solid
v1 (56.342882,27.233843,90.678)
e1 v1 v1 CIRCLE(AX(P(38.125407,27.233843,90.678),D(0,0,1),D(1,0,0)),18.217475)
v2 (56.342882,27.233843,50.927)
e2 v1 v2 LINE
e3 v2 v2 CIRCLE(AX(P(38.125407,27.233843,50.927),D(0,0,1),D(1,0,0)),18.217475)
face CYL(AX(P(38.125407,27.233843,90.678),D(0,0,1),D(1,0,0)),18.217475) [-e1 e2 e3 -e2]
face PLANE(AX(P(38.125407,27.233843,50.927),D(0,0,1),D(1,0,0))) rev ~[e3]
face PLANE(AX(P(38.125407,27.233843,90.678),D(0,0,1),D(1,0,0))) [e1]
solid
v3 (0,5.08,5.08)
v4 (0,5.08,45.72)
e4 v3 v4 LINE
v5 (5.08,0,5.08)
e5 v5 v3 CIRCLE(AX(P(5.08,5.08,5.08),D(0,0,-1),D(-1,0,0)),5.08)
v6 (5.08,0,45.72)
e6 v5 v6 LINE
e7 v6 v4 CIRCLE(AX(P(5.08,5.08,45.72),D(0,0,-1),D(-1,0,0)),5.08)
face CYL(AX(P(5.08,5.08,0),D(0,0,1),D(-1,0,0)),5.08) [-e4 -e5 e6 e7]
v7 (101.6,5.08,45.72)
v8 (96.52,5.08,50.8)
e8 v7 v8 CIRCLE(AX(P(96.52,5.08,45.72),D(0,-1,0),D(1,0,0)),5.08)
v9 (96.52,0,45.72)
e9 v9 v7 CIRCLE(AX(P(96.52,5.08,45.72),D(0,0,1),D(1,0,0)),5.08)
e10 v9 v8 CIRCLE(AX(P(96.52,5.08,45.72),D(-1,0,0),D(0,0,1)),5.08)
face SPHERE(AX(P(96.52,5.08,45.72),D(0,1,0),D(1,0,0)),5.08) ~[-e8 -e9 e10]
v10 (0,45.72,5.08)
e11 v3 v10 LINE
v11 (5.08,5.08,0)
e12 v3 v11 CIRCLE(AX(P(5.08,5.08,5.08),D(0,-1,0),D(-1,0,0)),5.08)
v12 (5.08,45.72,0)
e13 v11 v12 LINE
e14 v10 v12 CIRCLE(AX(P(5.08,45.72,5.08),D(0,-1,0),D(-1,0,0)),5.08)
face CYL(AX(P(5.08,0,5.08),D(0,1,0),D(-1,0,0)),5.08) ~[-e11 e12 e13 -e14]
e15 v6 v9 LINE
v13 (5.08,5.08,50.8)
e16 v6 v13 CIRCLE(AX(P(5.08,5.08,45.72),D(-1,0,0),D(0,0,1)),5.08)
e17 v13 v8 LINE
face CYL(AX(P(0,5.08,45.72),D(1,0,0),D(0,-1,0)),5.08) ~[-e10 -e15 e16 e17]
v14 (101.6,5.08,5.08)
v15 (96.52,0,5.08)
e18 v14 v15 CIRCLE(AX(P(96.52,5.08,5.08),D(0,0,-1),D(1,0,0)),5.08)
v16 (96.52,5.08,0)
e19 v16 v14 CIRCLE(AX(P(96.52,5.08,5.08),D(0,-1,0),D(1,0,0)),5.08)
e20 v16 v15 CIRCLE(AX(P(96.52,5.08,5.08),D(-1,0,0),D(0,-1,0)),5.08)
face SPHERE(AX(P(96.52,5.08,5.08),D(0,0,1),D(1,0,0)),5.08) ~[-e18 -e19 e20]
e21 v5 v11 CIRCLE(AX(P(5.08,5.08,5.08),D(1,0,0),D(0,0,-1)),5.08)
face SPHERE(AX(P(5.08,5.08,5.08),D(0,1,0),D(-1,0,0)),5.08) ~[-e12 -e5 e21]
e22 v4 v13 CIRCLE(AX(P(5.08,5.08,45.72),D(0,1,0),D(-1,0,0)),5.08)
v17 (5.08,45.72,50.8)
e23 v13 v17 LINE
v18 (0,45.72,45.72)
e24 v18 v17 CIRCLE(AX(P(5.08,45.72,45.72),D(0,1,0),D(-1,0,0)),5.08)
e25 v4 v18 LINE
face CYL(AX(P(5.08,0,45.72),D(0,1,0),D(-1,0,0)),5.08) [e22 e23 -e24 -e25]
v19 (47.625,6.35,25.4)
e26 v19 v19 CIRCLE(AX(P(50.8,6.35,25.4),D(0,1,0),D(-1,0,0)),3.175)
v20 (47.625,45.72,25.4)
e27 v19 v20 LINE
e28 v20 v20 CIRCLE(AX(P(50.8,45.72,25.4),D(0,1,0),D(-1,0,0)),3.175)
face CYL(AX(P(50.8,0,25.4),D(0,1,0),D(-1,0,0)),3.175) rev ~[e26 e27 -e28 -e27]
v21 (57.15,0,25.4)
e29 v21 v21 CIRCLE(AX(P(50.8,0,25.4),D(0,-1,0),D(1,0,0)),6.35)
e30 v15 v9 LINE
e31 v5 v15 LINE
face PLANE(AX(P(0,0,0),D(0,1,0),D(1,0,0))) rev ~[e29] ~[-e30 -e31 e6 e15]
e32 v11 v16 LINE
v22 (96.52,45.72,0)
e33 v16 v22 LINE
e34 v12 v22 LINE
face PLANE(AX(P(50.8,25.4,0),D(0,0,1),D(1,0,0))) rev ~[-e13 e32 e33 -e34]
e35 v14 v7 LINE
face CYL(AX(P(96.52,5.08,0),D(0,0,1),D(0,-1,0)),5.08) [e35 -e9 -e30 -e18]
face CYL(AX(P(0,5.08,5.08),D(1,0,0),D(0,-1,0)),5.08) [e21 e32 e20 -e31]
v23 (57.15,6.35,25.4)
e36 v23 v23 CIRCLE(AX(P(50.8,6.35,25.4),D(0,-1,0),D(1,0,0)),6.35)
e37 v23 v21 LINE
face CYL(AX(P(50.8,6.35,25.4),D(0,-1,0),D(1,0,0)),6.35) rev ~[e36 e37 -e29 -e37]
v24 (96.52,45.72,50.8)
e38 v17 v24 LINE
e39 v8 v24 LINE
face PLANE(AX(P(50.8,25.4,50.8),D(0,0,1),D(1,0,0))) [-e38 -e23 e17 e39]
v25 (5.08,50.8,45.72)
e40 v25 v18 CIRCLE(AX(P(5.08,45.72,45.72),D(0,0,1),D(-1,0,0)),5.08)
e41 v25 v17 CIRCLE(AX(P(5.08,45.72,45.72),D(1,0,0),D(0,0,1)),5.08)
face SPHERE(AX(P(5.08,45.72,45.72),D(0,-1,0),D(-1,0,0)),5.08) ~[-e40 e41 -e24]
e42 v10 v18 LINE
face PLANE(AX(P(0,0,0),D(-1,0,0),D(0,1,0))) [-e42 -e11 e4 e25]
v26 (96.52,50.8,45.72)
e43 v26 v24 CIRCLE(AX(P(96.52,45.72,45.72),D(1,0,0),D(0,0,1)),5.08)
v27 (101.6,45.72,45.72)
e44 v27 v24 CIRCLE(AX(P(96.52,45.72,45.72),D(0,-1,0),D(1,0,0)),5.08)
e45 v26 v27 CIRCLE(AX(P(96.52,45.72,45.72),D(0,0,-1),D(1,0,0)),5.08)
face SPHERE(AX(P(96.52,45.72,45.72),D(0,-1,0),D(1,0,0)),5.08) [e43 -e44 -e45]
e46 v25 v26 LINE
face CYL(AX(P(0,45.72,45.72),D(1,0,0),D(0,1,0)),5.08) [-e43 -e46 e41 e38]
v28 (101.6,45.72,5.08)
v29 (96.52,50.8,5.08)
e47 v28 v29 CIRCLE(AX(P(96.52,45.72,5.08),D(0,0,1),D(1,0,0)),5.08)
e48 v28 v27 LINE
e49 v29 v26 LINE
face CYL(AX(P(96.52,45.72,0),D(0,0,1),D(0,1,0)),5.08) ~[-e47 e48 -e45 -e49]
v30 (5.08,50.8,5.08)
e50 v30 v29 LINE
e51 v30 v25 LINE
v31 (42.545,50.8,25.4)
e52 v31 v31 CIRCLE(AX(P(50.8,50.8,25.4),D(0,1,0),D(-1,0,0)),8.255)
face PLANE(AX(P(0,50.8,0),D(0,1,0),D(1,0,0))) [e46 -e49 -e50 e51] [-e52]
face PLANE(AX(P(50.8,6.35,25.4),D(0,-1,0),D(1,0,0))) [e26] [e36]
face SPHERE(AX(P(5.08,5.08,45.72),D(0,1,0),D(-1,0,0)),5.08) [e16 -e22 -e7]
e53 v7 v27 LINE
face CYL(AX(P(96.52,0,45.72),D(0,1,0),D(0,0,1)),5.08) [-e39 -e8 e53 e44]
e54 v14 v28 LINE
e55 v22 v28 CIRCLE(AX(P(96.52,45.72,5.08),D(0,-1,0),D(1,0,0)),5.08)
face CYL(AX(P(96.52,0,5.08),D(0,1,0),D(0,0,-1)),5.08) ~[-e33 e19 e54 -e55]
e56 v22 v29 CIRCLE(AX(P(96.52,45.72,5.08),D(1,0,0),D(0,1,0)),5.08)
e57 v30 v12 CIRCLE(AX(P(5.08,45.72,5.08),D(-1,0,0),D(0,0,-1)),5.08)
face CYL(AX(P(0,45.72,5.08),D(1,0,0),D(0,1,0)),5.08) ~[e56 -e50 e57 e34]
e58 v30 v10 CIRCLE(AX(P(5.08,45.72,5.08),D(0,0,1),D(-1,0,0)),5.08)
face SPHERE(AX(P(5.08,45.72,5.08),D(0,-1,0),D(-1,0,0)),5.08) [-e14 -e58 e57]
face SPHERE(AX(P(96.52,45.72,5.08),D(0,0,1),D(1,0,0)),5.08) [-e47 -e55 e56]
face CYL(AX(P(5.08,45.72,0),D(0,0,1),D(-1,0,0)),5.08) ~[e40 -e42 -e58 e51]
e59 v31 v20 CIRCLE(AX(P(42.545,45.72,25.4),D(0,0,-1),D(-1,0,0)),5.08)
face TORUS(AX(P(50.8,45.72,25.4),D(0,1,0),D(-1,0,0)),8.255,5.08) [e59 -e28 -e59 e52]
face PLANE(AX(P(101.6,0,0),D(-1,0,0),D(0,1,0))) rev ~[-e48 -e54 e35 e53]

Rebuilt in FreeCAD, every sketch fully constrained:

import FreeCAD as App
import Part
import Sketcher
from FreeCAD import Vector
Q = App.Units.Quantity


def edges_at(feature, points):
    """Names of the edges that pass closest to the given points."""
    edges = feature.Shape.Edges
    near = lambda p: min(range(len(edges)), key=lambda i: edges[i].distToShape(Part.Vertex(*p))[0])
    return sorted({f"Edge{near(p) + 1}" for p in points})

doc = App.newDocument("Part")
body = doc.addObject("PartDesign::Body", "Body")

# Sketch on XY plane
sketch1 = body.newObject("Sketcher::SketchObject", "Sketch")
sketch1.AttachmentSupport = (doc.getObject("XY_Plane"), [""])
sketch1.MapMode = "FlatFace"
sketch1.addGeometry([
    Part.LineSegment(Vector(0, 51, 0), Vector(0, 0, 0)),
    Part.LineSegment(Vector(0, 0, 0), Vector(102, 0, 0)),
    Part.LineSegment(Vector(102, 0, 0), Vector(102, 51, 0)),
    Part.LineSegment(Vector(102, 51, 0), Vector(0, 51, 0)),
], False)
sketch1.addConstraint([
    Sketcher.Constraint("Coincident", 0, 2, 1, 1),
    Sketcher.Constraint("Coincident", 1, 2, 2, 1),
    Sketcher.Constraint("Coincident", 2, 2, 3, 1),
    Sketcher.Constraint("Coincident", 3, 2, 0, 1),
    Sketcher.Constraint("Vertical", 0),
    Sketcher.Constraint("Horizontal", 1),
    Sketcher.Constraint("Vertical", 2),
    Sketcher.Constraint("Horizontal", 3),
    Sketcher.Constraint("Coincident", 0, 2, -1, 1),
    Sketcher.Constraint("DistanceX", 1, 1, 1, 2, Q("4 in")),
    Sketcher.Constraint("DistanceY", 0, 2, 0, 1, Q("2 in")),
])
pad1 = body.newObject("PartDesign::Pad", "Pad")
pad1.Profile = sketch1
pad1.Length = Q("2 in")

# Sketch on XZ plane
sketch2 = body.newObject("Sketcher::SketchObject", "Sketch001")
sketch2.AttachmentSupport = (doc.getObject("XZ_Plane"), [""])
sketch2.MapMode = "FlatFace"
sketch2.addGeometry(Part.Circle(Vector(50.8, 25.4, 0), Vector(0, 0, 1), 3.2), False)
sketch2.addConstraint([
    Sketcher.Constraint("Diameter", 0, Q("0.25 in")),
    Sketcher.Constraint("DistanceX", -1, 1, 0, 3, Q("2 in")),
    Sketcher.Constraint("DistanceY", -1, 1, 0, 3, Q("1 in")),
])
doc.recompute()
hole = body.newObject("PartDesign::Hole", "Hole")
hole.Profile = sketch2
hole.ThreadType = "None"
hole.Diameter = Q("0.25 in")
hole.DepthType = "ThroughAll"
hole.HoleCutType = "Counterbore"
hole.HoleCutDiameter = Q("0.5 in")
hole.HoleCutDepth = Q("0.25 in")
doc.recompute()

fillet = body.newObject("PartDesign::Fillet", "Fillet")
fillet.Base = (hole, edges_at(hole, [
    (101.6, 25.4, 50.8),
    (101.6, 0, 25.4),
    (101.6, 50.8, 25.4),
    (101.6, 25.4, 0),
    (0, 25.4, 50.8),
    (0, 25.4, 0),
    (0, 50.8, 25.4),
    (0, 0, 25.4),
    (50.8, 0, 50.8),
    (50.8, 0, 0),
    (50.8, 50.8, 0),
    (50.8, 50.8, 50.8),
    (53.975, 50.8, 25.4),
]))
fillet.Radius = Q("0.2 in")
body2 = doc.addObject("PartDesign::Body", "Body001")

# Sketch on XY plane
sketch3 = body2.newObject("Sketcher::SketchObject", "Sketch002")
sketch3.AttachmentSupport = (doc.getObject("XY_Plane001"), [""])
sketch3.MapMode = "FlatFace"
sketch3.AttachmentOffset = App.Placement(Vector(0, 0, 3.57 * 25.4), App.Rotation())
sketch3.addGeometry(Part.Circle(Vector(38, 27, 0), Vector(0, 0, 1), 18), False)
sketch3.addConstraint([
    Sketcher.Constraint("Diameter", 0, Q("36.43495 mm")),
    Sketcher.Constraint("DistanceX", -1, 1, 0, 3, Q("38.125407 mm")),
    Sketcher.Constraint("DistanceY", -1, 1, 0, 3, Q("27.233843 mm")),
])
pad2 = body2.newObject("PartDesign::Pad", "Pad001")
pad2.Profile = sketch3
pad2.Length = Q("1.565 in")
pad2.Reversed = True

doc.recompute()
